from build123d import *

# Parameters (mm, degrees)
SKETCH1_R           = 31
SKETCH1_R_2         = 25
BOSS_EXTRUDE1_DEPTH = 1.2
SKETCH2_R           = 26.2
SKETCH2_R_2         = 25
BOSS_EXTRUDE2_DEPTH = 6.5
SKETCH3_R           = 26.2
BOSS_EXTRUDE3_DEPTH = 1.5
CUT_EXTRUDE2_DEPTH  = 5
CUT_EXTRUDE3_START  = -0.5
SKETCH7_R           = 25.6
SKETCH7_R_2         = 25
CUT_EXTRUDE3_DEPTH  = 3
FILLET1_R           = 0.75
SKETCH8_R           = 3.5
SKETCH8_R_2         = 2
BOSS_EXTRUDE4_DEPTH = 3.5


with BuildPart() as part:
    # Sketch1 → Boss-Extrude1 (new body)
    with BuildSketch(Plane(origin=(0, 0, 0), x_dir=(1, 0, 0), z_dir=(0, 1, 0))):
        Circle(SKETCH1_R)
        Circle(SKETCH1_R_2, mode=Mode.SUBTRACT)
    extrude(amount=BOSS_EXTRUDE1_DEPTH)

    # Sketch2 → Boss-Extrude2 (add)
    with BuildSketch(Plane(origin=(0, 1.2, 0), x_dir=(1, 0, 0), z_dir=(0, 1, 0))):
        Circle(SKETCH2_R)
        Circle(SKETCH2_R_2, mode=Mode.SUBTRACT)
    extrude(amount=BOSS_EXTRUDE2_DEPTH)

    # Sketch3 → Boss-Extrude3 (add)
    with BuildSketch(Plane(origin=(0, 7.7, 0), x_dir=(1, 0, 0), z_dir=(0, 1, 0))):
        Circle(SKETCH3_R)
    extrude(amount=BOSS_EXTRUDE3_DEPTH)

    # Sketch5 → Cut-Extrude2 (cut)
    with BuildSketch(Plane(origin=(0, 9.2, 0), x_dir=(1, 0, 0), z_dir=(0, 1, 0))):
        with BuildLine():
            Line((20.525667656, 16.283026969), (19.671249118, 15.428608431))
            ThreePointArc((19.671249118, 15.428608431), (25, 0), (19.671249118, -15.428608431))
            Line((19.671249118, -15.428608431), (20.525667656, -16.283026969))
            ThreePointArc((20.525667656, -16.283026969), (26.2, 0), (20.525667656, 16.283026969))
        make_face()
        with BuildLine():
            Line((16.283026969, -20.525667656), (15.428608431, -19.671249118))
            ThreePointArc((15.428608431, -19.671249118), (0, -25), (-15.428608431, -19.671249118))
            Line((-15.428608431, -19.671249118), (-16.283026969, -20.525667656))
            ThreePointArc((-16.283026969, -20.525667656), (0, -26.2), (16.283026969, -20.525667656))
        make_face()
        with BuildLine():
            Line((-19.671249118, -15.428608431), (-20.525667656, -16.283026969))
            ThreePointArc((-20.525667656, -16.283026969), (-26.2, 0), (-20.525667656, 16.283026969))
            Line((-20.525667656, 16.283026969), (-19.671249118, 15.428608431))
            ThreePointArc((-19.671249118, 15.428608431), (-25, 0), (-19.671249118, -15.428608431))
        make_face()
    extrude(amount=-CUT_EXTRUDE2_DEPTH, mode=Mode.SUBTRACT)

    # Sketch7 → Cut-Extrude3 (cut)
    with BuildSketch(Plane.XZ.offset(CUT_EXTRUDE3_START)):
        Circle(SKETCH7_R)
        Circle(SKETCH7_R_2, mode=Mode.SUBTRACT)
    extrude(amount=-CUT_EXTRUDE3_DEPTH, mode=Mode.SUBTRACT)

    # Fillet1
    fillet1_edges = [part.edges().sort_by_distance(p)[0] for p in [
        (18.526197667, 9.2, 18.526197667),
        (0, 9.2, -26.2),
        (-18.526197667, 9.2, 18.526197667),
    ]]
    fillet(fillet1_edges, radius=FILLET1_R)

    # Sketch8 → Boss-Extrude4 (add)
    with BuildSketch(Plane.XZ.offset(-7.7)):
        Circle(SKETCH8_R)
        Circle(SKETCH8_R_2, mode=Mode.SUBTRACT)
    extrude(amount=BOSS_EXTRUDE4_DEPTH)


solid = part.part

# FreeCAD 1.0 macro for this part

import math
import FreeCAD as App
import Part
import Sketcher


def edges_at(feature, points):
    """Names of the edges that pass closest to the given points."""
    edges = feature.Shape.Edges
    near = lambda p: min(range(len(edges)), key=lambda i: edges[i].distToShape(Part.Vertex(*p))[0])
    return sorted({f"Edge{near(p) + 1}" for p in points})

doc = App.newDocument("Part")
body = doc.addObject("PartDesign::Body", "Body")

sketch1 = doc.addObject("Sketcher::SketchObject", "Sketch")
body.addObject(sketch1)
sketch1.AttachmentSupport = (doc.XZ_Plane, [""])
sketch1.MapMode = "FlatFace"
sketch1.addGeometry([
    Part.Circle(App.Vector(0, 0, 0), App.Vector(0, 0, 1), 31),
    Part.Circle(App.Vector(0, 0, 0), App.Vector(0, 0, 1), 25),
], False)
sketch1.addConstraint([
    Sketcher.Constraint("Coincident", 0, 3, -1, 1),
    Sketcher.Constraint("Coincident", 1, 3, -1, 1),
    Sketcher.Constraint("Diameter", 0, 62.0),
    Sketcher.Constraint("Diameter", 1, 50.0),
])
pad1 = doc.addObject("PartDesign::Pad", "Pad")
body.addObject(pad1)
pad1.Profile = sketch1
pad1.Length = 1.2
pad1.Reversed = True

sketch2 = doc.addObject("Sketcher::SketchObject", "Sketch001")
body.addObject(sketch2)
sketch2.AttachmentSupport = (doc.XZ_Plane, [""])
sketch2.MapMode = "FlatFace"
sketch2.AttachmentOffset = App.Placement(App.Vector(0, 0, -1.2), App.Rotation())
sketch2.addGeometry([
    Part.Circle(App.Vector(0, 0, 0), App.Vector(0, 0, 1), 26),
    Part.Circle(App.Vector(0, 0, 0), App.Vector(0, 0, 1), 25),
], False)
sketch2.addConstraint([
    Sketcher.Constraint("Coincident", 0, 3, -1, 1),
    Sketcher.Constraint("Coincident", 1, 3, -1, 1),
    Sketcher.Constraint("Diameter", 1, 50.0),
    Sketcher.Constraint("Diameter", 0, 52.4),
])
pad2 = doc.addObject("PartDesign::Pad", "Pad001")
body.addObject(pad2)
pad2.Profile = sketch2
pad2.Length = 6.5
pad2.Reversed = True

sketch3 = doc.addObject("Sketcher::SketchObject", "Sketch002")
body.addObject(sketch3)
sketch3.AttachmentSupport = (doc.XZ_Plane, [""])
sketch3.MapMode = "FlatFace"
sketch3.AttachmentOffset = App.Placement(App.Vector(0, 0, -7.7), App.Rotation())
sketch3.addGeometry(Part.Circle(App.Vector(0, 0, 0), App.Vector(0, 0, 1), 26), False)
sketch3.addConstraint([
    Sketcher.Constraint("Coincident", 0, 3, -1, 1),
    Sketcher.Constraint("Diameter", 0, 52.4),
])
pad3 = doc.addObject("PartDesign::Pad", "Pad002")
body.addObject(pad3)
pad3.Profile = sketch3
pad3.Length = 1.5
pad3.Reversed = True

sketch4 = doc.addObject("Sketcher::SketchObject", "Sketch003")
body.addObject(sketch4)
sketch4.AttachmentSupport = (doc.XZ_Plane, [""])
sketch4.MapMode = "FlatFace"
sketch4.AttachmentOffset = App.Placement(App.Vector(0, 0, -9.2), App.Rotation())
sketch4.addGeometry([
    Part.LineSegment(App.Vector(20.5, -16.3, 0), App.Vector(19.7, -15.4, 0)),
    Part.ArcOfCircle(Part.Circle(App.Vector(0, 0, 0), App.Vector(0, 0, 1), 25), math.radians(-38), math.radians(38)),
    Part.LineSegment(App.Vector(19.7, 15.4, 0), App.Vector(20.5, 16.3, 0)),
    Part.ArcOfCircle(Part.Circle(App.Vector(0, 0, 0), App.Vector(0, 0, 1), 26.2), math.radians(-38), math.radians(38)),
    Part.LineSegment(App.Vector(16.3, 20.5, 0), App.Vector(15.4, 19.7, 0)),
    Part.ArcOfCircle(Part.Circle(App.Vector(0, 0, 0), App.Vector(0, 0, 1), 25), math.radians(52), math.radians(128)),
    Part.LineSegment(App.Vector(-15.4, 19.7, 0), App.Vector(-16.3, 20.5, 0)),
    Part.ArcOfCircle(Part.Circle(App.Vector(0, 0, 0), App.Vector(0, 0, 1), 26.2), math.radians(52), math.radians(128)),
    Part.LineSegment(App.Vector(-20.5, 16.3, 0), App.Vector(-19.7, 15.4, 0)),
    Part.ArcOfCircle(Part.Circle(App.Vector(0, 0, 0), App.Vector(0, 0, 1), 25), math.radians(142), math.radians(218)),
    Part.LineSegment(App.Vector(-19.7, -15.4, 0), App.Vector(-20.5, -16.3, 0)),
    Part.ArcOfCircle(Part.Circle(App.Vector(0, 0, 0), App.Vector(0, 0, 1), 26.2), math.radians(142), math.radians(218)),
], False)
sketch4.addConstraint([
    Sketcher.Constraint("Coincident", 0, 2, 1, 1),
    Sketcher.Constraint("Coincident", 1, 2, 2, 1),
    Sketcher.Constraint("Coincident", 2, 2, 3, 2),
    Sketcher.Constraint("Coincident", 3, 1, 0, 1),
    Sketcher.Constraint("Coincident", 4, 2, 5, 1),
    Sketcher.Constraint("Coincident", 5, 2, 6, 1),
    Sketcher.Constraint("Coincident", 6, 2, 7, 2),
    Sketcher.Constraint("Coincident", 7, 1, 4, 1),
    Sketcher.Constraint("Coincident", 8, 2, 9, 1),
    Sketcher.Constraint("Coincident", 9, 2, 10, 1),
    Sketcher.Constraint("Coincident", 10, 2, 11, 2),
    Sketcher.Constraint("Coincident", 11, 1, 8, 1),
    Sketcher.Constraint("Coincident", 1, 3, -1, 1),
    Sketcher.Constraint("Coincident", 3, 3, -1, 1),
    Sketcher.Constraint("Coincident", 5, 3, -1, 1),
    Sketcher.Constraint("Coincident", 7, 3, -1, 1),
    Sketcher.Constraint("Coincident", 9, 3, -1, 1),
    Sketcher.Constraint("Coincident", 11, 3, -1, 1),
    Sketcher.Constraint("Equal", 1, 5),
    Sketcher.Constraint("Equal", 3, 7),
    Sketcher.Constraint("Equal", 5, 9),
    Sketcher.Constraint("Equal", 7, 11),
    Sketcher.Constraint("Perpendicular", 0, 2),
    Sketcher.Constraint("Parallel", 2, 4),
    Sketcher.Constraint("Perpendicular", 4, 6),
    Sketcher.Constraint("Parallel", 6, 8),
    Sketcher.Constraint("Perpendicular", 8, 10),
    Sketcher.Constraint("Horizontal", 4, 2, 5, 2),
    Sketcher.Constraint("Horizontal", 6, 2, 7, 1),
    Sketcher.Constraint("Horizontal", 1, 2, 8, 2),
    Sketcher.Constraint("Horizontal", 0, 2, 9, 2),
    Sketcher.Constraint("Vertical", 0, 2, 1, 2),
    Sketcher.Constraint("Radius", 1, 25.0),
    Sketcher.Constraint("Radius", 3, 26.2),
    Sketcher.Constraint("DistanceX", -1, 1, 0, 2, 19.671249),
    Sketcher.Constraint("DistanceX", -1, 1, 4, 2, 15.428608),
])
pocket1 = doc.addObject("PartDesign::Pocket", "Pocket")
body.addObject(pocket1)
pocket1.Profile = sketch4
pocket1.Length = 5
pocket1.Reversed = True

sketch5 = doc.addObject("Sketcher::SketchObject", "Sketch004")
body.addObject(sketch5)
sketch5.AttachmentSupport = (doc.XZ_Plane, [""])
sketch5.MapMode = "FlatFace"
sketch5.AttachmentOffset = App.Placement(App.Vector(0, 0, -0.5), App.Rotation())
sketch5.addGeometry([
    Part.Circle(App.Vector(0, 0, 0), App.Vector(0, 0, 1), 26),
    Part.Circle(App.Vector(0, 0, 0), App.Vector(0, 0, 1), 25),
], False)
sketch5.addConstraint([
    Sketcher.Constraint("Coincident", 0, 3, -1, 1),
    Sketcher.Constraint("Coincident", 1, 3, -1, 1),
    Sketcher.Constraint("Diameter", 1, 50.0),
    Sketcher.Constraint("Diameter", 0, 51.2),
])
pocket2 = doc.addObject("PartDesign::Pocket", "Pocket001")
body.addObject(pocket2)
pocket2.Profile = sketch5
pocket2.Length = 3
doc.recompute()

fillet = doc.addObject("PartDesign::Fillet", "Fillet")
body.addObject(fillet)
fillet.Base = (pocket2, edges_at(pocket2, [(18.526, 9.2, 18.526), (0, 9.2, -26.2), (-18.526, 9.2, 18.526)]))
fillet.Radius = 0.75

sketch6 = doc.addObject("Sketcher::SketchObject", "Sketch005")
body.addObject(sketch6)
sketch6.AttachmentSupport = (doc.XZ_Plane, [""])
sketch6.MapMode = "FlatFace"
sketch6.AttachmentOffset = App.Placement(App.Vector(0, 0, -7.7), App.Rotation())
sketch6.addGeometry([
    Part.Circle(App.Vector(0, 0, 0), App.Vector(0, 0, 1), 3.5),
    Part.Circle(App.Vector(0, 0, 0), App.Vector(0, 0, 1), 2),
], False)
sketch6.addConstraint([
    Sketcher.Constraint("Coincident", 0, 3, -1, 1),
    Sketcher.Constraint("Coincident", 1, 3, -1, 1),
    Sketcher.Constraint("Diameter", 0, 7.0),
    Sketcher.Constraint("Diameter", 1, 4.0),
])
pad4 = doc.addObject("PartDesign::Pad", "Pad003")
body.addObject(pad4)
pad4.Profile = sketch6
pad4.Length = 3.5

doc.recompute()
